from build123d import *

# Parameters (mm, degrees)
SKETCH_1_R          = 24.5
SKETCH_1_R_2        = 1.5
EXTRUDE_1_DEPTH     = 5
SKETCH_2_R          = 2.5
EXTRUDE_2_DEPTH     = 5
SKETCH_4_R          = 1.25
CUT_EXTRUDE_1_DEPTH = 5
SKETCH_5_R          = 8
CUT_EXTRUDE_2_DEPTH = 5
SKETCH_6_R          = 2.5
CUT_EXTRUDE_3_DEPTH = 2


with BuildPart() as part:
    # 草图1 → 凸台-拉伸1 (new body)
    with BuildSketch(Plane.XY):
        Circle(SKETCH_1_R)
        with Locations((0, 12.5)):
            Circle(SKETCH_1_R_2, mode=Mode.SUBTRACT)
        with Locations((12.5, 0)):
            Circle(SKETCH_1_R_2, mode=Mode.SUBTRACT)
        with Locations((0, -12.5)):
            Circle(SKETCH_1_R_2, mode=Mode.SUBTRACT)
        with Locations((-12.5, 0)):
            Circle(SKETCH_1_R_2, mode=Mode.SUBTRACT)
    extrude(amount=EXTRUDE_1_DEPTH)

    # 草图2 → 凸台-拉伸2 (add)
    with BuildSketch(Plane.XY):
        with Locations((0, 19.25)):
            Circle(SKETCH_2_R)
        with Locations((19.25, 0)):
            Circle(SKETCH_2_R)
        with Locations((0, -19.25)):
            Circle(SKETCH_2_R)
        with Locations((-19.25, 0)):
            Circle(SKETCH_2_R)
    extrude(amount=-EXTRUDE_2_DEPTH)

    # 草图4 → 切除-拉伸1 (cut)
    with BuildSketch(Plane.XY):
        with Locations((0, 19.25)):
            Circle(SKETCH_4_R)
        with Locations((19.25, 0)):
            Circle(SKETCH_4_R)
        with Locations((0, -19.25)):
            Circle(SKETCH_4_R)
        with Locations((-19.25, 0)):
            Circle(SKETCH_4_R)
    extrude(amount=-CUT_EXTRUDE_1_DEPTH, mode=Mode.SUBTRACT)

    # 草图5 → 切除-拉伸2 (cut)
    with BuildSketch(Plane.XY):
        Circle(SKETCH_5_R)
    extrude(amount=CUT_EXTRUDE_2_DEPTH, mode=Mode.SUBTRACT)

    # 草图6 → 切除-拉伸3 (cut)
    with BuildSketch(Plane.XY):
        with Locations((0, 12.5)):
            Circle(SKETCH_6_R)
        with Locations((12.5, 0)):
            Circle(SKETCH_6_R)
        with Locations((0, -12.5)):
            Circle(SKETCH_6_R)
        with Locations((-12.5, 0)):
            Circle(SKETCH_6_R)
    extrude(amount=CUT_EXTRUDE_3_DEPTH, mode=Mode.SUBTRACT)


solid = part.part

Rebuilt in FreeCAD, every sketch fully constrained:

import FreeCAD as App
import Part
import Sketcher

V = App.Vector
Q = App.Units.Quantity

doc = App.newDocument("Part")
body = doc.addObject("PartDesign::Body", "Body")

sketch1 = body.newObject("Sketcher::SketchObject", "Sketch")
sketch1.AttachmentSupport = (doc.getObject("XY_Plane"), [""])
sketch1.MapMode = "FlatFace"
sketch1.addGeometry([
    Part.Circle(V(0, 0, 0), V(0, 0, 1), 24.5),
    Part.Circle(V(0, -12.5, 0), V(0, 0, 1), 1.5),
    Part.Circle(V(-12.5, 0, 0), V(0, 0, 1), 1.5),
    Part.Circle(V(12.5, 0, 0), V(0, 0, 1), 1.5),
    Part.Circle(V(0, 12.5, 0), V(0, 0, 1), 1.5),
], False)
sketch1.addConstraint([
    Sketcher.Constraint("Coincident", 0, 3, -1, 1),
    Sketcher.Constraint("Equal", 1, 2),
    Sketcher.Constraint("Equal", 2, 3),
    Sketcher.Constraint("Equal", 3, 4),
    Sketcher.Constraint("Symmetric", 2, 3, 3, 3, -1, 1),
    Sketcher.Constraint("Symmetric", 1, 3, 4, 3, -1, 1),
    Sketcher.Constraint("PointOnObject", 1, 3, -2),
    Sketcher.Constraint("PointOnObject", 2, 3, -1),
    Sketcher.Constraint("Diameter", 0, Q("49 mm")),
    Sketcher.Constraint("Diameter", 1, Q("3 mm")),
    Sketcher.Constraint("DistanceX", 2, 3, 3, 3, Q("25 mm")),
    Sketcher.Constraint("DistanceY", 1, 3, 4, 3, Q("25 mm")),
])
pad1 = body.newObject("PartDesign::Pad", "Pad")
pad1.Profile = sketch1
pad1.Length = 5

sketch2 = body.newObject("Sketcher::SketchObject", "Sketch001")
sketch2.AttachmentSupport = (doc.getObject("XY_Plane"), [""])
sketch2.MapMode = "FlatFace"
sketch2.addGeometry([
    Part.Circle(V(0, 19.2, 0), V(0, 0, 1), 2.5),
    Part.Circle(V(19.2, 0, 0), V(0, 0, 1), 2.5),
    Part.Circle(V(0, -19.2, 0), V(0, 0, 1), 2.5),
    Part.Circle(V(-19.2, 0, 0), V(0, 0, 1), 2.5),
], False)
sketch2.addConstraint([
    Sketcher.Constraint("Equal", 0, 1),
    Sketcher.Constraint("Equal", 1, 2),
    Sketcher.Constraint("Equal", 2, 3),
    Sketcher.Constraint("Symmetric", 0, 3, 2, 3, -1, 1),
    Sketcher.Constraint("Symmetric", 1, 3, 3, 3, -1, 1),
    Sketcher.Constraint("PointOnObject", 0, 3, -2),
    Sketcher.Constraint("PointOnObject", 1, 3, -1),
    Sketcher.Constraint("Diameter", 0, Q("5 mm")),
    Sketcher.Constraint("DistanceY", 2, 3, 0, 3, Q("38.5 mm")),
    Sketcher.Constraint("DistanceX", 3, 3, 1, 3, Q("38.5 mm")),
])
pad2 = body.newObject("PartDesign::Pad", "Pad001")
pad2.Profile = sketch2
pad2.Length = 5
pad2.Reversed = True

sketch3 = body.newObject("Sketcher::SketchObject", "Sketch002")
sketch3.AttachmentSupport = (doc.getObject("XY_Plane"), [""])
sketch3.MapMode = "FlatFace"
sketch3.addGeometry([
    Part.Circle(V(0, 19.2, 0), V(0, 0, 1), 1.2),
    Part.Circle(V(19.2, 0, 0), V(0, 0, 1), 1.2),
    Part.Circle(V(0, -19.2, 0), V(0, 0, 1), 1.2),
    Part.Circle(V(-19.2, 0, 0), V(0, 0, 1), 1.2),
], False)
sketch3.addConstraint([
    Sketcher.Constraint("Equal", 0, 1),
    Sketcher.Constraint("Equal", 1, 2),
    Sketcher.Constraint("Equal", 2, 3),
    Sketcher.Constraint("Symmetric", 0, 3, 2, 3, -1, 1),
    Sketcher.Constraint("Symmetric", 1, 3, 3, 3, -1, 1),
    Sketcher.Constraint("PointOnObject", 0, 3, -2),
    Sketcher.Constraint("PointOnObject", 1, 3, -1),
    Sketcher.Constraint("Diameter", 0, Q("2.5 mm")),
    Sketcher.Constraint("DistanceY", 2, 3, 0, 3, Q("38.5 mm")),
    Sketcher.Constraint("DistanceX", 3, 3, 1, 3, Q("38.5 mm")),
])
pocket1 = body.newObject("PartDesign::Pocket", "Pocket")
pocket1.Profile = sketch3
pocket1.Length = 5

sketch4 = body.newObject("Sketcher::SketchObject", "Sketch003")
sketch4.AttachmentSupport = (doc.getObject("XY_Plane"), [""])
sketch4.MapMode = "FlatFace"
sketch4.addGeometry(Part.Circle(V(0, 0, 0), V(0, 0, 1), 8), False)
sketch4.addConstraint([
    Sketcher.Constraint("Coincident", 0, 3, -1, 1),
    Sketcher.Constraint("Diameter", 0, Q("16 mm")),
])
pocket2 = body.newObject("PartDesign::Pocket", "Pocket001")
pocket2.Profile = sketch4
pocket2.Length = 5
pocket2.Reversed = True

sketch5 = body.newObject("Sketcher::SketchObject", "Sketch004")
sketch5.AttachmentSupport = (doc.getObject("XY_Plane"), [""])
sketch5.MapMode = "FlatFace"
sketch5.addGeometry([
    Part.Circle(V(0, 12.5, 0), V(0, 0, 1), 2.5),
    Part.Circle(V(12.5, 0, 0), V(0, 0, 1), 2.5),
    Part.Circle(V(0, -12.5, 0), V(0, 0, 1), 2.5),
    Part.Circle(V(-12.5, 0, 0), V(0, 0, 1), 2.5),
], False)
sketch5.addConstraint([
    Sketcher.Constraint("Equal", 0, 1),
    Sketcher.Constraint("Equal", 1, 2),
    Sketcher.Constraint("Equal", 2, 3),
    Sketcher.Constraint("Symmetric", 0, 3, 2, 3, -1, 1),
    Sketcher.Constraint("Symmetric", 1, 3, 3, 3, -1, 1),
    Sketcher.Constraint("PointOnObject", 0, 3, -2),
    Sketcher.Constraint("PointOnObject", 1, 3, -1),
    Sketcher.Constraint("Diameter", 0, Q("5 mm")),
    Sketcher.Constraint("DistanceY", 2, 3, 0, 3, Q("25 mm")),
    Sketcher.Constraint("DistanceX", 3, 3, 1, 3, Q("25 mm")),
])
pocket3 = body.newObject("PartDesign::Pocket", "Pocket002")
pocket3.Profile = sketch5
pocket3.Length = 2
pocket3.Reversed = True

doc.recompute()
